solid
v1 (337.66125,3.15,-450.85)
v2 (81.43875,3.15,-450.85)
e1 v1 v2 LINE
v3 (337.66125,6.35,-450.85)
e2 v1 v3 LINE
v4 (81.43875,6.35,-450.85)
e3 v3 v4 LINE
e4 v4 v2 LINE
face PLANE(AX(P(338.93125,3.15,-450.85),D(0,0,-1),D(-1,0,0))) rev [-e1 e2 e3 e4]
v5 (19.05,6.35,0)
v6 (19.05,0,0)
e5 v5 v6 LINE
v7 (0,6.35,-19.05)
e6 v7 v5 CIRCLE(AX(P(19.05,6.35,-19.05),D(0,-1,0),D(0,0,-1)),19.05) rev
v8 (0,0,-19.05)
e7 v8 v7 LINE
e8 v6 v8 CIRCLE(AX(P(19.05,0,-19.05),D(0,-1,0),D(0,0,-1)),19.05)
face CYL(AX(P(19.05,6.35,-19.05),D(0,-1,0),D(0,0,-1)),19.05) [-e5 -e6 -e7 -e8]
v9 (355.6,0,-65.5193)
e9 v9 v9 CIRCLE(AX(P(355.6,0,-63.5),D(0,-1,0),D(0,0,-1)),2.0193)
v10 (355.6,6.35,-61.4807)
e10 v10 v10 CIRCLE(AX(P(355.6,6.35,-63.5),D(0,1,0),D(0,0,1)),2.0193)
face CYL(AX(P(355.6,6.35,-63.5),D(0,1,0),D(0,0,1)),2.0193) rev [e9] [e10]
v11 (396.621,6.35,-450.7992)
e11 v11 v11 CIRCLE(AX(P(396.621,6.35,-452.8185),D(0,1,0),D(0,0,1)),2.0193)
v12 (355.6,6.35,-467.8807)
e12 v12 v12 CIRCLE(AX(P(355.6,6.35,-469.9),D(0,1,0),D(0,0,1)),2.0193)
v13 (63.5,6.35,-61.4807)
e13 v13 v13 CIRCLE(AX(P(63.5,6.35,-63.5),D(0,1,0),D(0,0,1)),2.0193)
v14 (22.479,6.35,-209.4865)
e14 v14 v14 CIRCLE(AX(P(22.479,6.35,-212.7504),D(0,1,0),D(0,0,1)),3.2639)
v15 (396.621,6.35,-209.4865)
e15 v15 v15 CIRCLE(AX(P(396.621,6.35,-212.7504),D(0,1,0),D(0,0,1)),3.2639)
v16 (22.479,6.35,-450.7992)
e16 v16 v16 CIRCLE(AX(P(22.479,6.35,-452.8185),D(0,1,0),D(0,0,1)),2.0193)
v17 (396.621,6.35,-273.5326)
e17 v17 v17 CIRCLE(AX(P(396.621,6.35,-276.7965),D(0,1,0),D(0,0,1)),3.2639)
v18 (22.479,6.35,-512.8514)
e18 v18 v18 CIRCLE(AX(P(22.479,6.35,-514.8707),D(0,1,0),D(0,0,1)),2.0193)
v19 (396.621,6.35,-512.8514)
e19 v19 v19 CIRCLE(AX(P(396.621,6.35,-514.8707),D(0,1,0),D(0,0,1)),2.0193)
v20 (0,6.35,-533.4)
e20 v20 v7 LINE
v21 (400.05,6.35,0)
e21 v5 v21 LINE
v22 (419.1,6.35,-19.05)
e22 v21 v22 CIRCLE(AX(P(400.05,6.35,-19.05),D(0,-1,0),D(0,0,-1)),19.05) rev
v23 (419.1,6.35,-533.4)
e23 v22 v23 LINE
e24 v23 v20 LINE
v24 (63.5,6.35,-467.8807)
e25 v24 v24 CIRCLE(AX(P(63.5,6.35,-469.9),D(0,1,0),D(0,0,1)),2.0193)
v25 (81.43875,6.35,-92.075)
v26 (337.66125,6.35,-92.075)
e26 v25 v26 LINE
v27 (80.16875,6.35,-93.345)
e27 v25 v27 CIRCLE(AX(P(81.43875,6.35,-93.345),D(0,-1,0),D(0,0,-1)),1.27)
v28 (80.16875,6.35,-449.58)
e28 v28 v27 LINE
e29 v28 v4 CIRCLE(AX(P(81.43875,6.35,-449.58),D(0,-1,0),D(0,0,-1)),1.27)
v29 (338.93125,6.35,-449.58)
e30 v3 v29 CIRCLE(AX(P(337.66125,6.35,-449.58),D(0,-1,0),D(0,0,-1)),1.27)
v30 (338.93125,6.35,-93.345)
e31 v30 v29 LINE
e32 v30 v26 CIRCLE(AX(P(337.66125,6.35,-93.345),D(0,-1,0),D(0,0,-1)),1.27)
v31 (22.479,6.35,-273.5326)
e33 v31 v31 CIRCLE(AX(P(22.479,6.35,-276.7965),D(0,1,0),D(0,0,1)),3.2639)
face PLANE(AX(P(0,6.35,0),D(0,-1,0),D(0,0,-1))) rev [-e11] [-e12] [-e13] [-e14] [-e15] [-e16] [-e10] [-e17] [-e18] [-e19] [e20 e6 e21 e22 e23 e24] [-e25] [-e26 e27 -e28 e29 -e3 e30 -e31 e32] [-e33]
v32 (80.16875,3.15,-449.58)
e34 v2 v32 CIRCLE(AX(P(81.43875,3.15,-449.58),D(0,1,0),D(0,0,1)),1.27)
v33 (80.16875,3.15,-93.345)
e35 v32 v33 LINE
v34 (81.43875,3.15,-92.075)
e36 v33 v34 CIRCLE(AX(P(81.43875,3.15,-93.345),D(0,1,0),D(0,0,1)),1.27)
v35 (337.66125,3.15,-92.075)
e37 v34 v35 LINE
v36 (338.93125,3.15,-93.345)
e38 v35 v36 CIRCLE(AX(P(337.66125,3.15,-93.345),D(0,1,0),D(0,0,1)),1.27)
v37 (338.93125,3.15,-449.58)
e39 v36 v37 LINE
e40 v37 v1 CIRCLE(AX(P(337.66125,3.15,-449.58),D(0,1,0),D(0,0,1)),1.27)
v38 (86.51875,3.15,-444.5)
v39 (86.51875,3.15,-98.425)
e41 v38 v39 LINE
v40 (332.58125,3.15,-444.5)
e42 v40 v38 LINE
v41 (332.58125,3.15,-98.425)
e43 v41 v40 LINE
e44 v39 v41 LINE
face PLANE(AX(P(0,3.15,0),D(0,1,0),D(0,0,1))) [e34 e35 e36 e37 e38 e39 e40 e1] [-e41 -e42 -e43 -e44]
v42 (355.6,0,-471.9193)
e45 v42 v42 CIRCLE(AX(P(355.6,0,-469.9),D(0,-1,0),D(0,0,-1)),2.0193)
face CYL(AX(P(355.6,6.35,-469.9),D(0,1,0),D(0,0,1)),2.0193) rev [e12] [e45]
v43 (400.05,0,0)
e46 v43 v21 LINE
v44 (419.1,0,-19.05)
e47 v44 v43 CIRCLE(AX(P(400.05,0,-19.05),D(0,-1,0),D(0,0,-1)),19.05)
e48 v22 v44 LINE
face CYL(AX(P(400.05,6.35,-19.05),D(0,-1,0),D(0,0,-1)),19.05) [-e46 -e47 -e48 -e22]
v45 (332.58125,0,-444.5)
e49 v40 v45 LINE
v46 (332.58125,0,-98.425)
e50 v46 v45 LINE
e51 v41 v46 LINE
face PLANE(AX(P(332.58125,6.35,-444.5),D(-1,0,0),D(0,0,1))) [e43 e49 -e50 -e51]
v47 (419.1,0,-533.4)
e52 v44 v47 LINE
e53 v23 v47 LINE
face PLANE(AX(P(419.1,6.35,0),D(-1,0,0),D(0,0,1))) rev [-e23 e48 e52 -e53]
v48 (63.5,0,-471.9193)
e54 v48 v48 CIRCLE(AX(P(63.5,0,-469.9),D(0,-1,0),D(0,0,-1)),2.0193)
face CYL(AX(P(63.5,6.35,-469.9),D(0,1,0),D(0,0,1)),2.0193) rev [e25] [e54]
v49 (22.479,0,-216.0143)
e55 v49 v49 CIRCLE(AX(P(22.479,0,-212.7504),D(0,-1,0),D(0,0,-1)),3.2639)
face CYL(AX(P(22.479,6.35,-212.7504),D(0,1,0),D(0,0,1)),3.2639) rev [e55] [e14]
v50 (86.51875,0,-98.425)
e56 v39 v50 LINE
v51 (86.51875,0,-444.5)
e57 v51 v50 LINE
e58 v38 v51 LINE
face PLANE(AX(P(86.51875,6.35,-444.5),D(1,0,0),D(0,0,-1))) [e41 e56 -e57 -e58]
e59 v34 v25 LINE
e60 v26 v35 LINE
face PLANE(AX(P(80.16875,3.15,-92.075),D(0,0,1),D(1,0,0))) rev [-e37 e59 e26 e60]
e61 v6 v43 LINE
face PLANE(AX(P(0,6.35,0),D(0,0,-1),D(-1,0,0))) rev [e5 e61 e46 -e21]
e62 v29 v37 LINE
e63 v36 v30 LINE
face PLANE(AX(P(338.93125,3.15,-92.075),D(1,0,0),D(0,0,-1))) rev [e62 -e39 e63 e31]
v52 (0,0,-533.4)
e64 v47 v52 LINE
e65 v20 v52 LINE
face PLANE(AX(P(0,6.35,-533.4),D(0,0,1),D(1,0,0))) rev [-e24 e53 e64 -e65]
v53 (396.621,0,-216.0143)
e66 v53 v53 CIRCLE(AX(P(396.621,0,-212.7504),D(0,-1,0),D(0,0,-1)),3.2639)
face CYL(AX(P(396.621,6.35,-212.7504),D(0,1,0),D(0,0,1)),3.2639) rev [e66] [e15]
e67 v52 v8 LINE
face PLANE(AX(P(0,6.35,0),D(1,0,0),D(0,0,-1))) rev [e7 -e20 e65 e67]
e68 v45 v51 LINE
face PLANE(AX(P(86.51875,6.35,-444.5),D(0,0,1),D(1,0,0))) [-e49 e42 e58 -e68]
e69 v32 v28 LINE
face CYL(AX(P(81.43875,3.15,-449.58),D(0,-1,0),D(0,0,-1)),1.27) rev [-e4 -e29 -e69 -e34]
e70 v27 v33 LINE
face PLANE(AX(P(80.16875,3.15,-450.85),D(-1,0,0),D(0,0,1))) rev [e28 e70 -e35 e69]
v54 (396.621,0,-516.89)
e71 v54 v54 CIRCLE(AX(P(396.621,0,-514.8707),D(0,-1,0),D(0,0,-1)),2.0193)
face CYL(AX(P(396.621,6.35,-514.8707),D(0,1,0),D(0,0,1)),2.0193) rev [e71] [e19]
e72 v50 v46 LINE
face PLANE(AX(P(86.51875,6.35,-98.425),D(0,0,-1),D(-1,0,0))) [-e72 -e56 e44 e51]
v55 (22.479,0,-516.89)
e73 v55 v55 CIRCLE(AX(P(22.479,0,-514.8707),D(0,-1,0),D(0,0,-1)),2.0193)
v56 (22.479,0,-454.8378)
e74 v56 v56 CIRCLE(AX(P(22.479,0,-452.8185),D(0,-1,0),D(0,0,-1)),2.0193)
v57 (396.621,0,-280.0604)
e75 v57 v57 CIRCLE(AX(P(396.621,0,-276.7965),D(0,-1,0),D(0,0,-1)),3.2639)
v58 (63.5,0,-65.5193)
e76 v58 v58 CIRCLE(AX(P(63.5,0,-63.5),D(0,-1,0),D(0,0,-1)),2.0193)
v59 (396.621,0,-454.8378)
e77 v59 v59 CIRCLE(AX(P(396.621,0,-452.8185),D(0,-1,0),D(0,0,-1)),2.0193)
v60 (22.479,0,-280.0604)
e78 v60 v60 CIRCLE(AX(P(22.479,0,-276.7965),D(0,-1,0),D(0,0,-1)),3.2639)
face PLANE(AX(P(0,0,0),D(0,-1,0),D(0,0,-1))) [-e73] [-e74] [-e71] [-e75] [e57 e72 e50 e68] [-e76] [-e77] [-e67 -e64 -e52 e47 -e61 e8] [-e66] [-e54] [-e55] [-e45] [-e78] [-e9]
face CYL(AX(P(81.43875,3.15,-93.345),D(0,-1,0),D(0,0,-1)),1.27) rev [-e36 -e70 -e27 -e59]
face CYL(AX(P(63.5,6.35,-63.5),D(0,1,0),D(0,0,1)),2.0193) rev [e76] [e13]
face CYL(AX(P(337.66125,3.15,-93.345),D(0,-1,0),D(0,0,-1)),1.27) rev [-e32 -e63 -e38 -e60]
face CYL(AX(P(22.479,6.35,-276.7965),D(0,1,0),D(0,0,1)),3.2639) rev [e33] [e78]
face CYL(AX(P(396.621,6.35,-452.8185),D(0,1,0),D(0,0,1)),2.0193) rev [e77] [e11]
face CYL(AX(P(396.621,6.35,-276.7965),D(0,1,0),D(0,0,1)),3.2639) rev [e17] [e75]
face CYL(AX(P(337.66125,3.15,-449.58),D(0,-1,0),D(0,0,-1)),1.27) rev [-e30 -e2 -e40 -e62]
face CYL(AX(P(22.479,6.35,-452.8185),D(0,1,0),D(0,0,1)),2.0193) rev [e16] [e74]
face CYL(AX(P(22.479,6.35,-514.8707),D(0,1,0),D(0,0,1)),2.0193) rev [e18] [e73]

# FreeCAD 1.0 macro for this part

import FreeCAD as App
import Part
import Sketcher
Q = App.Units.Quantity


def edges_at(feature, points):
    """Names of the edges that pass closest to the given points."""
    edges = feature.Shape.Edges
    near = lambda p: min(range(len(edges)), key=lambda i: edges[i].distToShape(Part.Vertex(*p))[0])
    return sorted({f"Edge{near(p) + 1}" for p in points})

doc = App.newDocument("Part")
params = doc.addObject("Spreadsheet::Sheet", "Params")
for row, (alias, value) in enumerate([
    ("sketch1_height", "21 in"),
    ("sketch1_width", "16.5 in"),
    ("sketch1_width2", "9.6875 in"),
    ("sketch1_height2", "13.625 in"),
    ("pad1_length", "0.25 in"),
    ("sketch2_width", "10.1875 in"),
    ("sketch2_height", "14.125 in"),
    ("pocket1_length", "3.2 mm"),
    ("fillet_radius", "0.05 in"),
    ("fillet2_radius", "0.75 in"),
    ("sketch3_diameter", "0.159 in"),
    ("hole_diameter", "0.159 in"),
    ("hole_depth", "0.25 in"),
    ("sketch4_diameter", "0.159 in"),
    ("hole2_diameter", "0.159 in"),
    ("hole2_depth", "0.25 in"),
    ("sketch5_diameter", "0.257 in"),
    ("hole3_diameter", "0.257 in"),
    ("hole3_depth", "0.25 in"),
], start=1):
    params.set(f"A{row}", alias)
    params.set(f"B{row}", "=" + value)
    params.setAlias(f"B{row}", alias)

body = doc.addObject("PartDesign::Body", "Body")

sketch1 = body.newObject("Sketcher::SketchObject", "Sketch")
sketch1.AttachmentSupport = (doc.getObject("XZ_Plane"), [""])
sketch1.MapMode = "FlatFace"
sketch1.addGeometry(Part.LineSegment(App.Vector(0, -533.4, 0), App.Vector(0, 0, 0)), False)
sketch1.addGeometry(Part.LineSegment(App.Vector(0, 0, 0), App.Vector(419.1, 0, 0)), False)
sketch1.addGeometry(Part.LineSegment(App.Vector(419.1, 0, 0), App.Vector(419.1, -533.4, 0)), False)
sketch1.addGeometry(Part.LineSegment(App.Vector(419.1, -533.4, 0), App.Vector(0, -533.4, 0)), False)
sketch1.addGeometry(Part.LineSegment(App.Vector(332.58125, -98.425, 0), App.Vector(86.51875, -98.425, 0)), False)
sketch1.addGeometry(Part.LineSegment(App.Vector(86.51875, -98.425, 0), App.Vector(86.51875, -444.5, 0)), False)
sketch1.addGeometry(Part.LineSegment(App.Vector(86.51875, -444.5, 0), App.Vector(332.58125, -444.5, 0)), False)
sketch1.addGeometry(Part.LineSegment(App.Vector(332.58125, -444.5, 0), App.Vector(332.58125, -98.425, 0)), False)
sketch1.addConstraint(Sketcher.Constraint("Coincident", 0, 2, 1, 1))
sketch1.addConstraint(Sketcher.Constraint("Coincident", 1, 2, 2, 1))
sketch1.addConstraint(Sketcher.Constraint("Coincident", 2, 2, 3, 1))
sketch1.addConstraint(Sketcher.Constraint("Coincident", 3, 2, 0, 1))
sketch1.addConstraint(Sketcher.Constraint("Coincident", 4, 2, 5, 1))
sketch1.addConstraint(Sketcher.Constraint("Coincident", 5, 2, 6, 1))
sketch1.addConstraint(Sketcher.Constraint("Coincident", 6, 2, 7, 1))
sketch1.addConstraint(Sketcher.Constraint("Coincident", 7, 2, 4, 1))
sketch1.addConstraint(Sketcher.Constraint("Vertical", 0))
sketch1.addConstraint(Sketcher.Constraint("Horizontal", 1))
sketch1.addConstraint(Sketcher.Constraint("Vertical", 2))
sketch1.addConstraint(Sketcher.Constraint("Horizontal", 3))
sketch1.addConstraint(Sketcher.Constraint("Horizontal", 4))
sketch1.addConstraint(Sketcher.Constraint("Vertical", 5))
sketch1.addConstraint(Sketcher.Constraint("Horizontal", 6))
sketch1.addConstraint(Sketcher.Constraint("Vertical", 7))
sketch1.addConstraint(Sketcher.Constraint("Coincident", 0, 2, -1, 1))
sketch1.addConstraint(Sketcher.Constraint("DistanceY", 0, 1, 0, 2, Q("21 in")))
sketch1.addConstraint(Sketcher.Constraint("DistanceX", 1, 1, 1, 2, Q("16.5 in")))
sketch1.addConstraint(Sketcher.Constraint("DistanceY", 5, 2, -1, 1, Q("17.5 in")))
sketch1.addConstraint(Sketcher.Constraint("DistanceX", 4, 2, 4, 1, Q("9.6875 in")))
sketch1.addConstraint(Sketcher.Constraint("DistanceY", 5, 2, 5, 1, Q("13.625 in")))
sketch1.addConstraint(Sketcher.Constraint("DistanceX", -1, 1, 4, 2, Q("3.40625 in")))
sketch1.setExpression("Constraints[17]", "Params.sketch1_height")
sketch1.setExpression("Constraints[18]", "Params.sketch1_width")
sketch1.setExpression("Constraints[20]", "Params.sketch1_width2")
sketch1.setExpression("Constraints[21]", "Params.sketch1_height2")
pad1 = body.newObject("PartDesign::Pad", "Pad")
pad1.Profile = sketch1
pad1.setExpression("Length", "Params.pad1_length")
pad1.Reversed = True

sketch2 = body.newObject("Sketcher::SketchObject", "Sketch001")
sketch2.AttachmentSupport = (doc.getObject("XZ_Plane"), [""])
sketch2.MapMode = "FlatFace"
sketch2.AttachmentOffset = App.Placement(App.Vector(0, 0, -0.25 * 25.4), App.Rotation())
sketch2.addGeometry(Part.LineSegment(App.Vector(80.16875, -450.85, 0), App.Vector(80.16875, -92.075, 0)), False)
sketch2.addGeometry(Part.LineSegment(App.Vector(80.16875, -92.075, 0), App.Vector(338.93125, -92.075, 0)), False)
sketch2.addGeometry(Part.LineSegment(App.Vector(338.93125, -92.075, 0), App.Vector(338.93125, -450.85, 0)), False)
sketch2.addGeometry(Part.LineSegment(App.Vector(338.93125, -450.85, 0), App.Vector(80.16875, -450.85, 0)), False)
sketch2.addConstraint(Sketcher.Constraint("Coincident", 0, 2, 1, 1))
sketch2.addConstraint(Sketcher.Constraint("Coincident", 1, 2, 2, 1))
sketch2.addConstraint(Sketcher.Constraint("Coincident", 2, 2, 3, 1))
sketch2.addConstraint(Sketcher.Constraint("Coincident", 3, 2, 0, 1))
sketch2.addConstraint(Sketcher.Constraint("Vertical", 0))
sketch2.addConstraint(Sketcher.Constraint("Horizontal", 1))
sketch2.addConstraint(Sketcher.Constraint("Vertical", 2))
sketch2.addConstraint(Sketcher.Constraint("Horizontal", 3))
sketch2.addConstraint(Sketcher.Constraint("DistanceX", 1, 1, 1, 2, Q("10.1875 in")))
sketch2.addConstraint(Sketcher.Constraint("DistanceY", 0, 1, 0, 2, Q("14.125 in")))
sketch2.addConstraint(Sketcher.Constraint("DistanceY", 2, 2, -1, 1, Q("17.75 in")))
sketch2.addConstraint(Sketcher.Constraint("DistanceX", -1, 1, 0, 2, Q("3.15625 in")))
sketch2.setExpression("Constraints[8]", "Params.sketch2_width")
sketch2.setExpression("Constraints[9]", "Params.sketch2_height")
pocket1 = body.newObject("PartDesign::Pocket", "Pocket")
pocket1.Profile = sketch2
pocket1.setExpression("Length", "Params.pocket1_length")
pocket1.Reversed = True
doc.recompute()

fillet = body.newObject("PartDesign::Fillet", "Fillet")
fillet.Base = (pocket1, edges_at(pocket1, [
    (80.169, 4.75, -92.075),
    (80.169, 4.75, -450.85),
    (338.931, 4.75, -450.85),
    (338.931, 4.75, -92.075),
]))
fillet.setExpression("Radius", "Params.fillet_radius")
doc.recompute()

fillet2 = body.newObject("PartDesign::Fillet", "Fillet001")
fillet2.Base = (fillet, edges_at(fillet, [(419.1, 3.175, 0), (0, 3.175, 0)]))
fillet2.setExpression("Radius", "Params.fillet2_radius")

sketch3 = body.newObject("Sketcher::SketchObject", "Sketch002")
sketch3.AttachmentSupport = (doc.getObject("XZ_Plane"), [""])
sketch3.MapMode = "FlatFace"
sketch3.AttachmentOffset = App.Placement(App.Vector(0, 0, -0.25 * 25.4), App.Rotation())
sketch3.addGeometry(Part.Circle(App.Vector(63.5, -469.9, 0), App.Vector(0, 0, 1), 2.0193), False)
sketch3.addGeometry(Part.Circle(App.Vector(355.6, -469.9, 0), App.Vector(0, 0, 1), 2.0193), False)
sketch3.addGeometry(Part.Circle(App.Vector(355.6, -63.5, 0), App.Vector(0, 0, 1), 2.0193), False)
sketch3.addGeometry(Part.Circle(App.Vector(63.5, -63.5, 0), App.Vector(0, 0, 1), 2.0193), False)
sketch3.addConstraint(Sketcher.Constraint("Equal", 0, 1))
sketch3.addConstraint(Sketcher.Constraint("Equal", 1, 2))
sketch3.addConstraint(Sketcher.Constraint("Equal", 2, 3))
sketch3.addConstraint(Sketcher.Constraint("Horizontal", 0, 3, 1, 3))
sketch3.addConstraint(Sketcher.Constraint("Horizontal", 2, 3, 3, 3))
sketch3.addConstraint(Sketcher.Constraint("Vertical", 1, 3, 2, 3))
sketch3.addConstraint(Sketcher.Constraint("Vertical", 0, 3, 3, 3))
sketch3.addConstraint(Sketcher.Constraint("Diameter", 0, Q("0.159 in")))
sketch3.addConstraint(Sketcher.Constraint("DistanceX", -1, 1, 1, 3, Q("14 in")))
sketch3.addConstraint(Sketcher.Constraint("DistanceY", 1, 3, 2, 3, Q("16 in")))
sketch3.addConstraint(Sketcher.Constraint("DistanceX", -1, 1, 0, 3, Q("2.5 in")))
sketch3.addConstraint(Sketcher.Constraint("DistanceY", 0, 3, -1, 1, Q("18.5 in")))
sketch3.setExpression("Constraints[7]", "Params.sketch3_diameter")
doc.recompute()
hole = body.newObject("PartDesign::Hole", "Hole")
hole.Profile = sketch3
hole.ThreadType = "None"
hole.setExpression("Diameter", "Params.hole_diameter")
hole.DepthType = "Dimension"
hole.setExpression("Depth", "Params.hole_depth")
hole.DrillPoint = "Flat"
hole.Reversed = True

sketch4 = body.newObject("Sketcher::SketchObject", "Sketch003")
sketch4.AttachmentSupport = (doc.getObject("XZ_Plane"), [""])
sketch4.MapMode = "FlatFace"
sketch4.AttachmentOffset = App.Placement(App.Vector(0, 0, -0.25 * 25.4), App.Rotation())
sketch4.addGeometry(Part.Circle(App.Vector(22.479, -514.8707, 0), App.Vector(0, 0, 1), 2.0193), False)
sketch4.addGeometry(Part.Circle(App.Vector(22.479, -452.8185, 0), App.Vector(0, 0, 1), 2.0193), False)
sketch4.addGeometry(Part.Circle(App.Vector(396.621, -514.8707, 0), App.Vector(0, 0, 1), 2.0193), False)
sketch4.addGeometry(Part.Circle(App.Vector(396.621, -452.8185, 0), App.Vector(0, 0, 1), 2.0193), False)
sketch4.addConstraint(Sketcher.Constraint("Equal", 0, 1))
sketch4.addConstraint(Sketcher.Constraint("Equal", 1, 2))
sketch4.addConstraint(Sketcher.Constraint("Equal", 2, 3))
sketch4.addConstraint(Sketcher.Constraint("Horizontal", 0, 3, 2, 3))
sketch4.addConstraint(Sketcher.Constraint("Horizontal", 1, 3, 3, 3))
sketch4.addConstraint(Sketcher.Constraint("Vertical", 0, 3, 1, 3))
sketch4.addConstraint(Sketcher.Constraint("Vertical", 2, 3, 3, 3))
sketch4.addConstraint(Sketcher.Constraint("Diameter", 0, Q("0.159 in")))
sketch4.addConstraint(Sketcher.Constraint("DistanceX", 0, 3, 2, 3, Q("14.73 in")))
sketch4.addConstraint(Sketcher.Constraint("DistanceX", -1, 1, 0, 3, Q("0.885 in")))
sketch4.addConstraint(Sketcher.Constraint("DistanceY", 0, 3, 1, 3, Q("2.443 in")))
sketch4.addConstraint(Sketcher.Constraint("DistanceY", 0, 3, -1, 1, Q("20.2705 in")))
sketch4.setExpression("Constraints[7]", "Params.sketch4_diameter")
doc.recompute()
hole2 = body.newObject("PartDesign::Hole", "Hole001")
hole2.Profile = sketch4
hole2.ThreadType = "None"
hole2.setExpression("Diameter", "Params.hole2_diameter")
hole2.DepthType = "Dimension"
hole2.setExpression("Depth", "Params.hole2_depth")
hole2.DrillPoint = "Flat"
hole2.Reversed = True

sketch5 = body.newObject("Sketcher::SketchObject", "Sketch004")
sketch5.AttachmentSupport = (doc.getObject("XZ_Plane"), [""])
sketch5.MapMode = "FlatFace"
sketch5.AttachmentOffset = App.Placement(App.Vector(0, 0, -0.25 * 25.4), App.Rotation())
sketch5.addGeometry(Part.Circle(App.Vector(22.479, -276.7965, 0), App.Vector(0, 0, 1), 3.2639), False)
sketch5.addGeometry(Part.Circle(App.Vector(22.479, -212.7504, 0), App.Vector(0, 0, 1), 3.2639), False)
sketch5.addGeometry(Part.Circle(App.Vector(396.621, -276.7965, 0), App.Vector(0, 0, 1), 3.2639), False)
sketch5.addGeometry(Part.Circle(App.Vector(396.621, -212.7504, 0), App.Vector(0, 0, 1), 3.2639), False)
sketch5.addConstraint(Sketcher.Constraint("Equal", 0, 1))
sketch5.addConstraint(Sketcher.Constraint("Equal", 1, 2))
sketch5.addConstraint(Sketcher.Constraint("Equal", 2, 3))
sketch5.addConstraint(Sketcher.Constraint("Horizontal", 0, 3, 2, 3))
sketch5.addConstraint(Sketcher.Constraint("Horizontal", 1, 3, 3, 3))
sketch5.addConstraint(Sketcher.Constraint("Vertical", 0, 3, 1, 3))
sketch5.addConstraint(Sketcher.Constraint("Vertical", 2, 3, 3, 3))
sketch5.addConstraint(Sketcher.Constraint("Diameter", 0, Q("0.257 in")))
sketch5.addConstraint(Sketcher.Constraint("DistanceX", 0, 3, 2, 3, Q("14.73 in")))
sketch5.addConstraint(Sketcher.Constraint("DistanceX", -1, 1, 0, 3, Q("0.885 in")))
sketch5.addConstraint(Sketcher.Constraint("DistanceY", 1, 3, -1, 1, Q("8.376 in")))
sketch5.addConstraint(Sketcher.Constraint("DistanceY", 0, 3, -1, 1, Q("10.8975 in")))
sketch5.setExpression("Constraints[7]", "Params.sketch5_diameter")
doc.recompute()
hole3 = body.newObject("PartDesign::Hole", "Hole002")
hole3.Profile = sketch5
hole3.ThreadType = "None"
hole3.setExpression("Diameter", "Params.hole3_diameter")
hole3.DepthType = "Dimension"
hole3.setExpression("Depth", "Params.hole3_depth")
hole3.DrillPoint = "Flat"
hole3.Reversed = True

doc.recompute()
